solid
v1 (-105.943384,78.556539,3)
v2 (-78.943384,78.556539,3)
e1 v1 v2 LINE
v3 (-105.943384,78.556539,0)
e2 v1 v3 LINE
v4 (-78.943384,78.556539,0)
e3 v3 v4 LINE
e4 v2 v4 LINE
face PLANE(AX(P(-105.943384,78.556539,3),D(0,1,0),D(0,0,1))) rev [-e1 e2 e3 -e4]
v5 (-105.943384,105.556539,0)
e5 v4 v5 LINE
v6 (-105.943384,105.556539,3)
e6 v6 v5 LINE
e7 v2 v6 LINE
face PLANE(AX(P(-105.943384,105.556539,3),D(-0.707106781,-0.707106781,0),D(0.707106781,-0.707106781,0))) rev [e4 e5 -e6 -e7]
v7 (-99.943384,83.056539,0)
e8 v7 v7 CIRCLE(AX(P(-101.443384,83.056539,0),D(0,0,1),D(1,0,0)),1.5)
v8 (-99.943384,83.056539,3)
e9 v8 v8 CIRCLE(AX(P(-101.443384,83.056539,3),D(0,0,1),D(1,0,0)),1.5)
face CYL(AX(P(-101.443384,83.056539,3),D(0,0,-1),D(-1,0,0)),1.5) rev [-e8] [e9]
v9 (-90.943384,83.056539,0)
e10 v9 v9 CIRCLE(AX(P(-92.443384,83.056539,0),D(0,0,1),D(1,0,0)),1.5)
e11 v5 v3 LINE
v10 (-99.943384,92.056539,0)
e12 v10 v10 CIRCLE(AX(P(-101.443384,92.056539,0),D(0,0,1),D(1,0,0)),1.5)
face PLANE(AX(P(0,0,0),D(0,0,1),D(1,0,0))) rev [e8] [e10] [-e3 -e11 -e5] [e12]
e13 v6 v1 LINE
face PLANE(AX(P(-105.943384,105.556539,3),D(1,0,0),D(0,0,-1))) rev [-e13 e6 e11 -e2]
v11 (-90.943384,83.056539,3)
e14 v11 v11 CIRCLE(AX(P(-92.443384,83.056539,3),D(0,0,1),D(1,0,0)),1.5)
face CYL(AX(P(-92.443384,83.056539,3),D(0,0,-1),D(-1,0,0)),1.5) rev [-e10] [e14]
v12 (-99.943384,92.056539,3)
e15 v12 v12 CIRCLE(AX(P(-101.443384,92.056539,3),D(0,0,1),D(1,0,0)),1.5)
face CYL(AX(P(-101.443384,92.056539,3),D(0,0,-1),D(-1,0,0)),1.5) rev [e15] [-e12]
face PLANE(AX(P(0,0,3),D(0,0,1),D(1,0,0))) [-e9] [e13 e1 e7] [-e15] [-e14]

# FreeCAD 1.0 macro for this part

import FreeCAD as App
import Part
import Sketcher


def add_polygon(sketch, points):
    """Adds a closed chain of lines whose ends are joined by coincident constraints."""
    first, n = sketch.GeometryCount, len(points)
    for a, b in zip(points, points[1:] + points[:1]):
        sketch.addGeometry(Part.LineSegment(App.Vector(*a, 0), App.Vector(*b, 0)), False)
    for i in range(n):
        sketch.addConstraint(Sketcher.Constraint("Coincident", first + i, 2, first + (i + 1) % n, 1))

doc = App.newDocument("Part")
body = doc.addObject("PartDesign::Body", "Body")

# Sketch on XY plane
sketch1 = doc.addObject("Sketcher::SketchObject", "Sketch")
body.addObject(sketch1)
sketch1.AttachmentSupport = (doc.XY_Plane, [""])
sketch1.MapMode = "FlatFace"
add_polygon(sketch1, [(-105.943384, 105.556539), (-105.943384, 78.556539), (-78.943384, 78.556539)])  # lines 0-2
sketch1.addGeometry(Part.Circle(App.Vector(-101.443384, 83.056539, 0), App.Vector(0, 0, 1), 1.5), False)  # 3
sketch1.addGeometry(Part.Circle(App.Vector(-92.443384, 83.056539, 0), App.Vector(0, 0, 1), 1.5), False)  # 4
sketch1.addGeometry(Part.Circle(App.Vector(-101.443384, 92.056539, 0), App.Vector(0, 0, 1), 1.5), False)  # 5
sketch1.addConstraint(Sketcher.Constraint("Vertical", 0))
sketch1.addConstraint(Sketcher.Constraint("Horizontal", 1))
sketch1.addConstraint(Sketcher.Constraint("Equal", 3, 4))
sketch1.addConstraint(Sketcher.Constraint("Equal", 4, 5))
sketch1.addConstraint(Sketcher.Constraint("Horizontal", 3, 3, 4, 3))
sketch1.addConstraint(Sketcher.Constraint("Vertical", 3, 3, 5, 3))
sketch1.addConstraint(Sketcher.Constraint("Equal", 1, 0))
sketch1.addConstraint(Sketcher.Constraint("Diameter", 3, 3.0))
sketch1.addConstraint(Sketcher.Constraint("DistanceX", 1, 1, 1, 2, 27.0))
sketch1.addConstraint(Sketcher.Constraint("DistanceX", 3, 3, 4, 3, 9.0))
sketch1.addConstraint(Sketcher.Constraint("DistanceY", 3, 3, 5, 3, 9.0))
sketch1.addConstraint(Sketcher.Constraint("DistanceX", 0, 2, 3, 3, 4.5))
sketch1.addConstraint(Sketcher.Constraint("DistanceY", 0, 2, 3, 3, 4.5))
sketch1.addConstraint(Sketcher.Constraint("DistanceY", -1, 1, 3, 3, 83.056539))
sketch1.addConstraint(Sketcher.Constraint("DistanceX", 3, 3, -1, 1, 101.443384))
pad1 = doc.addObject("PartDesign::Pad", "Pad")
body.addObject(pad1)
pad1.Profile = sketch1
pad1.Length = 3

doc.recompute()
